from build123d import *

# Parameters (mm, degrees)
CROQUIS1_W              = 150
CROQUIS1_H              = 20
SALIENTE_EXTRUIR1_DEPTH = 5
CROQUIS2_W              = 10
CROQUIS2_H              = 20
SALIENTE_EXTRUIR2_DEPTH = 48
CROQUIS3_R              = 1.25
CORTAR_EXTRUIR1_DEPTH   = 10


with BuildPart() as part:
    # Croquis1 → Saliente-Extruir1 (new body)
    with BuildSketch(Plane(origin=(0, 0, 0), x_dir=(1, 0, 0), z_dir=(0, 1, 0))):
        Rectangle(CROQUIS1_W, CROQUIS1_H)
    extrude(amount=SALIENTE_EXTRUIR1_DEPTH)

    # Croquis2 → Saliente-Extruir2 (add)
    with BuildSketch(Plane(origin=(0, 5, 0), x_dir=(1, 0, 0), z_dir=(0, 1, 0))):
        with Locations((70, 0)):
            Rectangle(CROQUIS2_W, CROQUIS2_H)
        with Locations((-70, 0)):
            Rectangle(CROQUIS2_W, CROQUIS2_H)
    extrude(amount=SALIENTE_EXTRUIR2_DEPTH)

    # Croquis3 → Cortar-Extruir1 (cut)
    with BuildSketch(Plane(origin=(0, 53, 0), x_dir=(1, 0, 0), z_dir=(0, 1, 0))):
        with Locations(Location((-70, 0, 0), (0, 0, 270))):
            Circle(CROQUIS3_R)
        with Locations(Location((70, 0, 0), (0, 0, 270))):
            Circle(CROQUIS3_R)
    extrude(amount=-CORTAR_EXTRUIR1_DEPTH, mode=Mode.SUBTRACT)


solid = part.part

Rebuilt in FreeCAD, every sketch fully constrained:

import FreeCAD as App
import Part
import Sketcher
Q = App.Units.Quantity


def add_polygon(sketch, points):
    """Adds a closed chain of lines whose ends are joined by coincident constraints."""
    first, n = sketch.GeometryCount, len(points)
    for a, b in zip(points, points[1:] + points[:1]):
        sketch.addGeometry(Part.LineSegment(App.Vector(*a, 0), App.Vector(*b, 0)), False)
    for i in range(n):
        sketch.addConstraint(Sketcher.Constraint("Coincident", first + i, 2, first + (i + 1) % n, 1))

doc = App.newDocument("Part")
params = doc.addObject("Spreadsheet::Sheet", "Params")
for row, (alias, value) in enumerate([
    ("sketch1_width", "150 mm"),
    ("sketch1_height", "20 mm"),
    ("pad1_length", "5 mm"),
    ("sketch2_width", "10 mm"),
    ("sketch2_height", "20 mm"),
    ("pad2_length", "48 mm"),
    ("sketch3_diameter", "2.5 mm"),
    ("pocket1_length", "10 mm"),
], start=1):
    params.set(f"A{row}", alias)
    params.set(f"B{row}", "=" + value)
    params.setAlias(f"B{row}", alias)

body = doc.addObject("PartDesign::Body", "Body")

sketch1 = body.newObject("Sketcher::SketchObject", "Sketch")
sketch1.AttachmentSupport = (doc.getObject("XZ_Plane"), [""])
sketch1.MapMode = "FlatFace"
add_polygon(sketch1, [(-75, -10), (-75, 10), (75, 10), (75, -10)])
sketch1.addConstraint(Sketcher.Constraint("Vertical", 0))
sketch1.addConstraint(Sketcher.Constraint("Horizontal", 1))
sketch1.addConstraint(Sketcher.Constraint("Vertical", 2))
sketch1.addConstraint(Sketcher.Constraint("Horizontal", 3))
sketch1.addConstraint(Sketcher.Constraint("Symmetric", 0, 2, 2, 2, -1, 1))
sketch1.addConstraint(Sketcher.Constraint("DistanceX", 1, 1, 1, 2, Q("150 mm")))
sketch1.addConstraint(Sketcher.Constraint("DistanceY", 0, 1, 0, 2, Q("20 mm")))
sketch1.setExpression("Constraints[9]", "Params.sketch1_width")
sketch1.setExpression("Constraints[10]", "Params.sketch1_height")
pad1 = body.newObject("PartDesign::Pad", "Pad")
pad1.Profile = sketch1
pad1.setExpression("Length", "Params.pad1_length")
pad1.Reversed = True

sketch2 = body.newObject("Sketcher::SketchObject", "Sketch001")
sketch2.AttachmentSupport = (doc.getObject("XZ_Plane"), [""])
sketch2.MapMode = "FlatFace"
sketch2.AttachmentOffset = App.Placement(App.Vector(0, 0, -5), App.Rotation())
add_polygon(sketch2, [(65, -10), (65, 10), (75, 10), (75, -10)])
add_polygon(sketch2, [(-75, -10), (-75, 10), (-65, 10), (-65, -10)])
sketch2.addConstraint(Sketcher.Constraint("Vertical", 0))
sketch2.addConstraint(Sketcher.Constraint("Horizontal", 1))
sketch2.addConstraint(Sketcher.Constraint("Vertical", 2))
sketch2.addConstraint(Sketcher.Constraint("Horizontal", 3))
sketch2.addConstraint(Sketcher.Constraint("Vertical", 4))
sketch2.addConstraint(Sketcher.Constraint("Horizontal", 5))
sketch2.addConstraint(Sketcher.Constraint("Vertical", 6))
sketch2.addConstraint(Sketcher.Constraint("Horizontal", 7))
sketch2.addConstraint(Sketcher.Constraint("Symmetric", 2, 2, 4, 2, -1, 1))
sketch2.addConstraint(Sketcher.Constraint("Symmetric", 0, 2, 6, 2, -1, 1))
sketch2.addConstraint(Sketcher.Constraint("Horizontal", 1, 2, 4, 2))
sketch2.addConstraint(Sketcher.Constraint("DistanceX", 1, 1, 1, 2, Q("10 mm")))
sketch2.addConstraint(Sketcher.Constraint("DistanceY", 0, 1, 0, 2, Q("20 mm")))
sketch2.addConstraint(Sketcher.Constraint("DistanceX", -1, 1, 0, 2, Q("65 mm")))
sketch2.setExpression("Constraints[19]", "Params.sketch2_width")
sketch2.setExpression("Constraints[20]", "Params.sketch2_height")
pad2 = body.newObject("PartDesign::Pad", "Pad001")
pad2.Profile = sketch2
pad2.setExpression("Length", "Params.pad2_length")
pad2.Reversed = True

sketch3 = body.newObject("Sketcher::SketchObject", "Sketch002")
sketch3.AttachmentSupport = (doc.getObject("XZ_Plane"), [""])
sketch3.MapMode = "FlatFace"
sketch3.AttachmentOffset = App.Placement(App.Vector(0, 0, -53), App.Rotation())
sketch3.addGeometry(Part.Circle(App.Vector(-70, 0, 0), App.Vector(0, 0, 1), 1.2), False)
sketch3.addGeometry(Part.Circle(App.Vector(70, 0, 0), App.Vector(0, 0, 1), 1.2), False)
sketch3.addConstraint(Sketcher.Constraint("Equal", 0, 1))
sketch3.addConstraint(Sketcher.Constraint("Symmetric", 0, 3, 1, 3, -1, 1))
sketch3.addConstraint(Sketcher.Constraint("PointOnObject", 0, 3, -1))
sketch3.addConstraint(Sketcher.Constraint("Diameter", 0, Q("2.5 mm")))
sketch3.addConstraint(Sketcher.Constraint("DistanceX", 0, 3, -1, 1, Q("70 mm")))
sketch3.setExpression("Constraints[3]", "Params.sketch3_diameter")
pocket1 = body.newObject("PartDesign::Pocket", "Pocket")
pocket1.Profile = sketch3
pocket1.setExpression("Length", "Params.pocket1_length")
pocket1.Reversed = True

doc.recompute()
